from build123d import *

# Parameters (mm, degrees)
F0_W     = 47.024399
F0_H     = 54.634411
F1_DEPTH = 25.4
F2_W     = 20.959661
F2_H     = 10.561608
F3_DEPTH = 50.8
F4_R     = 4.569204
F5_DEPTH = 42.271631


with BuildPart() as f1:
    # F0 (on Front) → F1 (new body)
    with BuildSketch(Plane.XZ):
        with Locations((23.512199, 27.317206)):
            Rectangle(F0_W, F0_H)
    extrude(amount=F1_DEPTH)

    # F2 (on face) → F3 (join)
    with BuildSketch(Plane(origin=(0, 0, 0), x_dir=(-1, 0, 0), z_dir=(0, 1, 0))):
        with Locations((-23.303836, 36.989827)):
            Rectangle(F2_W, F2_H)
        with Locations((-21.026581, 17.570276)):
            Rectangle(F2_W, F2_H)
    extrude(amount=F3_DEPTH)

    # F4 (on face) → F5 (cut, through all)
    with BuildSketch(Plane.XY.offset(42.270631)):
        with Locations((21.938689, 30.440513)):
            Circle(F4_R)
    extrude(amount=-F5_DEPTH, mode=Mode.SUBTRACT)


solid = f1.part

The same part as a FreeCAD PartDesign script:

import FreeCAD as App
import Part
import Sketcher
Q = App.Units.Quantity

doc = App.newDocument("Part")
body = doc.addObject("PartDesign::Body", "Body")

# Sketch on XZ plane
sketch1 = body.newObject("Sketcher::SketchObject", "Sketch")
sketch1.AttachmentSupport = (doc.getObject("XZ_Plane"), [""])
sketch1.MapMode = "FlatFace"
sketch1.addGeometry(Part.LineSegment(App.Vector(0, 55, 0), App.Vector(0, 0, 0)), False)
sketch1.addGeometry(Part.LineSegment(App.Vector(0, 0, 0), App.Vector(47, 0, 0)), False)
sketch1.addGeometry(Part.LineSegment(App.Vector(47, 0, 0), App.Vector(47, 55, 0)), False)
sketch1.addGeometry(Part.LineSegment(App.Vector(47, 55, 0), App.Vector(0, 55, 0)), False)
sketch1.addConstraint(Sketcher.Constraint("Coincident", 0, 2, 1, 1))
sketch1.addConstraint(Sketcher.Constraint("Coincident", 1, 2, 2, 1))
sketch1.addConstraint(Sketcher.Constraint("Coincident", 2, 2, 3, 1))
sketch1.addConstraint(Sketcher.Constraint("Coincident", 3, 2, 0, 1))
sketch1.addConstraint(Sketcher.Constraint("Vertical", 0))
sketch1.addConstraint(Sketcher.Constraint("Horizontal", 1))
sketch1.addConstraint(Sketcher.Constraint("Vertical", 2))
sketch1.addConstraint(Sketcher.Constraint("Horizontal", 3))
sketch1.addConstraint(Sketcher.Constraint("Coincident", 0, 2, -1, 1))
sketch1.addConstraint(Sketcher.Constraint("DistanceX", 1, 1, 1, 2, Q("47.024399 mm")))
sketch1.addConstraint(Sketcher.Constraint("DistanceY", 0, 2, 0, 1, Q("54.634411 mm")))
pad1 = body.newObject("PartDesign::Pad", "Pad")
pad1.Profile = sketch1
pad1.Length = Q("1 in")

# Sketch on XZ plane
sketch2 = body.newObject("Sketcher::SketchObject", "Sketch001")
sketch2.AttachmentSupport = (doc.getObject("XZ_Plane"), [""])
sketch2.MapMode = "FlatFace"
sketch2.addGeometry(Part.LineSegment(App.Vector(34, 42, 0), App.Vector(34, 32, 0)), False)
sketch2.addGeometry(Part.LineSegment(App.Vector(34, 32, 0), App.Vector(13, 32, 0)), False)
sketch2.addGeometry(Part.LineSegment(App.Vector(13, 32, 0), App.Vector(13, 42, 0)), False)
sketch2.addGeometry(Part.LineSegment(App.Vector(13, 42, 0), App.Vector(34, 42, 0)), False)
sketch2.addGeometry(Part.LineSegment(App.Vector(32, 23, 0), App.Vector(32, 12, 0)), False)
sketch2.addGeometry(Part.LineSegment(App.Vector(32, 12, 0), App.Vector(11, 12, 0)), False)
sketch2.addGeometry(Part.LineSegment(App.Vector(11, 12, 0), App.Vector(11, 23, 0)), False)
sketch2.addGeometry(Part.LineSegment(App.Vector(11, 23, 0), App.Vector(32, 23, 0)), False)
sketch2.addConstraint(Sketcher.Constraint("Coincident", 0, 2, 1, 1))
sketch2.addConstraint(Sketcher.Constraint("Coincident", 1, 2, 2, 1))
sketch2.addConstraint(Sketcher.Constraint("Coincident", 2, 2, 3, 1))
sketch2.addConstraint(Sketcher.Constraint("Coincident", 3, 2, 0, 1))
sketch2.addConstraint(Sketcher.Constraint("Coincident", 4, 2, 5, 1))
sketch2.addConstraint(Sketcher.Constraint("Coincident", 5, 2, 6, 1))
sketch2.addConstraint(Sketcher.Constraint("Coincident", 6, 2, 7, 1))
sketch2.addConstraint(Sketcher.Constraint("Coincident", 7, 2, 4, 1))
sketch2.addConstraint(Sketcher.Constraint("Vertical", 0))
sketch2.addConstraint(Sketcher.Constraint("Horizontal", 1))
sketch2.addConstraint(Sketcher.Constraint("Vertical", 2))
sketch2.addConstraint(Sketcher.Constraint("Horizontal", 3))
sketch2.addConstraint(Sketcher.Constraint("Vertical", 4))
sketch2.addConstraint(Sketcher.Constraint("Horizontal", 5))
sketch2.addConstraint(Sketcher.Constraint("Vertical", 6))
sketch2.addConstraint(Sketcher.Constraint("Horizontal", 7))
sketch2.addConstraint(Sketcher.Constraint("Equal", 3, 5))
sketch2.addConstraint(Sketcher.Constraint("Equal", 2, 4))
sketch2.addConstraint(Sketcher.Constraint("DistanceX", 1, 2, 1, 1, Q("20.959661 mm")))
sketch2.addConstraint(Sketcher.Constraint("DistanceY", 0, 2, 0, 1, Q("10.561608 mm")))
sketch2.addConstraint(Sketcher.Constraint("DistanceY", -1, 1, 2, 2, Q("42.270631 mm")))
sketch2.addConstraint(Sketcher.Constraint("DistanceX", -1, 1, 4, 2, Q("31.506411 mm")))
sketch2.addConstraint(Sketcher.Constraint("DistanceY", -1, 1, 6, 2, Q("22.85108 mm")))
sketch2.addConstraint(Sketcher.Constraint("DistanceX", -1, 1, 0, 2, Q("33.783667 mm")))
pad2 = body.newObject("PartDesign::Pad", "Pad001")
pad2.Profile = sketch2
pad2.Length = Q("2 in")
pad2.Reversed = True

# Sketch on XY plane
sketch3 = body.newObject("Sketcher::SketchObject", "Sketch002")
sketch3.AttachmentSupport = (doc.getObject("XY_Plane"), [""])
sketch3.MapMode = "FlatFace"
sketch3.AttachmentOffset = App.Placement(App.Vector(0, 0, 42.270631), App.Rotation())
sketch3.addGeometry(Part.Circle(App.Vector(21.9, 30.4, 0), App.Vector(0, 0, 1), 4.6), False)
sketch3.addConstraint(Sketcher.Constraint("Diameter", 0, Q("9.138408 mm")))
sketch3.addConstraint(Sketcher.Constraint("DistanceX", -1, 1, 0, 3, Q("21.938689 mm")))
sketch3.addConstraint(Sketcher.Constraint("DistanceY", -1, 1, 0, 3, Q("30.440513 mm")))
pocket1 = body.newObject("PartDesign::Pocket", "Pocket")
pocket1.Profile = sketch3
pocket1.Type = "ThroughAll"

doc.recompute()
